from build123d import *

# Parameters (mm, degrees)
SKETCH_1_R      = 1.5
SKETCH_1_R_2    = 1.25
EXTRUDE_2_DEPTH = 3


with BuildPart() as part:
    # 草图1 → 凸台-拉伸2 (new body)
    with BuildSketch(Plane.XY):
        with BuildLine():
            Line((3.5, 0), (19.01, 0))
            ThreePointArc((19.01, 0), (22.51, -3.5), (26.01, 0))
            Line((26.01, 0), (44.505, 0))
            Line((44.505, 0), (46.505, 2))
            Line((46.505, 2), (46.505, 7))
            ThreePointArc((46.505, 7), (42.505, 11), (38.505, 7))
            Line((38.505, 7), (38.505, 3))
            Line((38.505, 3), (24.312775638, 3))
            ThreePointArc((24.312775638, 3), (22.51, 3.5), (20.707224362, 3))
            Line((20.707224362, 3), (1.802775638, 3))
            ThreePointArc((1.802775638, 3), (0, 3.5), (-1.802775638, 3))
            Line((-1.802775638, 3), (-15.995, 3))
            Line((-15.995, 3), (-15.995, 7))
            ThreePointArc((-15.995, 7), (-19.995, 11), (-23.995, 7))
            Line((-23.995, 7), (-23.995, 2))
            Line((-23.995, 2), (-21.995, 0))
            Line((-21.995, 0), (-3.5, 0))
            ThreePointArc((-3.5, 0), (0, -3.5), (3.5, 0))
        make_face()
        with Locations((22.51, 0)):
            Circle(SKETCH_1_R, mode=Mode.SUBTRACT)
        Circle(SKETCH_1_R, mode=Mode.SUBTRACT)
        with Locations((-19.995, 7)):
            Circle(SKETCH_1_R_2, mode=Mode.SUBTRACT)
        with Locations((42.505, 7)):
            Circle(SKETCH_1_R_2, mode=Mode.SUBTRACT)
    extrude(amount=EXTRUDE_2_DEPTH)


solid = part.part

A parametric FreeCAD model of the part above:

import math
import FreeCAD as App
import Part
import Sketcher

V = App.Vector

doc = App.newDocument("Part")
params = doc.addObject("Spreadsheet::Sheet", "Params")
for row, (alias, value) in enumerate([
    ("sketch1_diameter", "3 mm"),
    ("sketch1_radius", "4 mm"),
    ("sketch1_diameter2", "2.5 mm"),
    ("sketch1_radius2", "3.5 mm"),
    ("sketch1_height", "5 mm"),
    ("pad1_length", "3 mm"),
], start=1):
    params.set(f"A{row}", alias)
    params.set(f"B{row}", "=" + value)
    params.setAlias(f"B{row}", alias)

body = doc.addObject("PartDesign::Body", "Body")

sketch1 = doc.addObject("Sketcher::SketchObject", "Sketch")
body.addObject(sketch1)
sketch1.AttachmentSupport = (doc.XY_Plane, [""])
sketch1.MapMode = "FlatFace"
sketch1.addGeometry([
    Part.LineSegment(V(3.5, 0, 0), V(19, 0, 0)),
    Part.ArcOfCircle(Part.Circle(V(22.5, 0, 0), V(0, 0, 1), 3.5), math.radians(180), math.radians(360)),
    Part.LineSegment(V(26, 0, 0), V(44.5, 0, 0)),
    Part.LineSegment(V(44.5, 0, 0), V(46.5, 2, 0)),
    Part.LineSegment(V(46.5, 2, 0), V(46.5, 7, 0)),
    Part.ArcOfCircle(Part.Circle(V(42.5, 7, 0), V(0, 0, 1), 4), math.radians(0), math.radians(180)),
    Part.LineSegment(V(38.5, 7, 0), V(38.5, 3, 0)),
    Part.LineSegment(V(38.5, 3, 0), V(24.3, 3, 0)),
    Part.ArcOfCircle(Part.Circle(V(22.5, 0, 0), V(0, 0, 1), 3.5), math.radians(59), math.radians(121)),
    Part.LineSegment(V(20.7, 3, 0), V(1.8, 3, 0)),
    Part.ArcOfCircle(Part.Circle(V(0, 0, 0), V(0, 0, 1), 3.5), math.radians(59), math.radians(121)),
    Part.LineSegment(V(-1.8, 3, 0), V(-16, 3, 0)),
    Part.LineSegment(V(-16, 3, 0), V(-16, 7, 0)),
    Part.ArcOfCircle(Part.Circle(V(-20, 7, 0), V(0, 0, 1), 4), math.radians(0), math.radians(180)),
    Part.LineSegment(V(-24, 7, 0), V(-24, 2, 0)),
    Part.LineSegment(V(-24, 2, 0), V(-22, 0, 0)),
    Part.LineSegment(V(-22, 0, 0), V(-3.5, 0, 0)),
    Part.ArcOfCircle(Part.Circle(V(0, 0, 0), V(0, 0, 1), 3.5), math.radians(180), math.radians(360)),
    Part.Circle(V(0, 0, 0), V(0, 0, 1), 1.5),
    Part.Circle(V(22.5, 0, 0), V(0, 0, 1), 1.5),
    Part.Circle(V(-20, 7, 0), V(0, 0, 1), 1.2),
    Part.Circle(V(42.5, 7, 0), V(0, 0, 1), 1.2),
], False)
sketch1.addConstraint([
    Sketcher.Constraint("Coincident", 0, 2, 1, 1),
    Sketcher.Constraint("Coincident", 1, 2, 2, 1),
    Sketcher.Constraint("Coincident", 2, 2, 3, 1),
    Sketcher.Constraint("Coincident", 3, 2, 4, 1),
    Sketcher.Constraint("Tangent", 4, 2, 5, 1),
    Sketcher.Constraint("Tangent", 5, 2, 6, 1),
    Sketcher.Constraint("Coincident", 6, 2, 7, 1),
    Sketcher.Constraint("Coincident", 7, 2, 8, 1),
    Sketcher.Constraint("Coincident", 8, 2, 9, 1),
    Sketcher.Constraint("Coincident", 9, 2, 10, 1),
    Sketcher.Constraint("Coincident", 10, 2, 11, 1),
    Sketcher.Constraint("Coincident", 11, 2, 12, 1),
    Sketcher.Constraint("Tangent", 12, 2, 13, 1),
    Sketcher.Constraint("Tangent", 13, 2, 14, 1),
    Sketcher.Constraint("Coincident", 14, 2, 15, 1),
    Sketcher.Constraint("Coincident", 15, 2, 16, 1),
    Sketcher.Constraint("Coincident", 16, 2, 17, 1),
    Sketcher.Constraint("Coincident", 17, 2, 0, 1),
    Sketcher.Constraint("Horizontal", 0),
    Sketcher.Constraint("Horizontal", 2),
    Sketcher.Constraint("Vertical", 4),
    Sketcher.Constraint("Vertical", 6),
    Sketcher.Constraint("Horizontal", 7),
    Sketcher.Constraint("Horizontal", 9),
    Sketcher.Constraint("Horizontal", 11),
    Sketcher.Constraint("Vertical", 12),
    Sketcher.Constraint("Vertical", 14),
    Sketcher.Constraint("Horizontal", 16),
    Sketcher.Constraint("Coincident", 10, 3, -1, 1),
    Sketcher.Constraint("Coincident", 17, 3, -1, 1),
    Sketcher.Constraint("Coincident", 18, 3, -1, 1),
    Sketcher.Constraint("Coincident", 8, 3, 1, 3),
    Sketcher.Constraint("Coincident", 19, 3, 1, 3),
    Sketcher.Constraint("Coincident", 20, 3, 13, 3),
    Sketcher.Constraint("Coincident", 21, 3, 5, 3),
    Sketcher.Constraint("Equal", 1, 8),
    Sketcher.Constraint("Equal", 8, 10),
    Sketcher.Constraint("Equal", 5, 13),
    Sketcher.Constraint("Equal", 10, 17),
    Sketcher.Constraint("Equal", 18, 19),
    Sketcher.Constraint("Equal", 20, 21),
    Sketcher.Constraint("PointOnObject", 1, 3, -1),
    Sketcher.Constraint("PointOnObject", 0, 2, -1),
    Sketcher.Constraint("PointOnObject", 1, 2, -1),
    Sketcher.Constraint("PointOnObject", 15, 2, -1),
    Sketcher.Constraint("Perpendicular", 3, 15),
    Sketcher.Constraint("Horizontal", 5, 3, 13, 3),
    Sketcher.Constraint("Horizontal", 7, 2, 8, 2),
    Sketcher.Constraint("Horizontal", 9, 2, 10, 2),
    Sketcher.Constraint("Horizontal", 3, 2, 14, 2),
    Sketcher.Constraint("Equal", 7, 11),
    Sketcher.Constraint("Equal", 2, 16),
    Sketcher.Constraint("Diameter", 18, 3.0),
    Sketcher.Constraint("Radius", 5, 4.0),
    Sketcher.Constraint("Diameter", 20, 2.5),
    Sketcher.Constraint("Radius", 1, 3.5),
    Sketcher.Constraint("DistanceY", 4, 1, 4, 2, 5.0),
    Sketcher.Constraint("DistanceY", 6, 2, 6, 1, 4.0),
    Sketcher.Constraint("DistanceY", -1, 1, 5, 3, 7.0),
    Sketcher.Constraint("DistanceX", 0, 1, 0, 2, 15.51),
    Sketcher.Constraint("DistanceX", 13, 3, 5, 3, 62.5),
])
sketch1.setExpression("Constraints[52]", "Params.sketch1_diameter")
sketch1.setExpression("Constraints[53]", "Params.sketch1_radius")
sketch1.setExpression("Constraints[54]", "Params.sketch1_diameter2")
sketch1.setExpression("Constraints[55]", "Params.sketch1_radius2")
sketch1.setExpression("Constraints[56]", "Params.sketch1_height")
pad1 = doc.addObject("PartDesign::Pad", "Pad")
body.addObject(pad1)
pad1.Profile = sketch1
pad1.setExpression("Length", "Params.pad1_length")

doc.recompute()
